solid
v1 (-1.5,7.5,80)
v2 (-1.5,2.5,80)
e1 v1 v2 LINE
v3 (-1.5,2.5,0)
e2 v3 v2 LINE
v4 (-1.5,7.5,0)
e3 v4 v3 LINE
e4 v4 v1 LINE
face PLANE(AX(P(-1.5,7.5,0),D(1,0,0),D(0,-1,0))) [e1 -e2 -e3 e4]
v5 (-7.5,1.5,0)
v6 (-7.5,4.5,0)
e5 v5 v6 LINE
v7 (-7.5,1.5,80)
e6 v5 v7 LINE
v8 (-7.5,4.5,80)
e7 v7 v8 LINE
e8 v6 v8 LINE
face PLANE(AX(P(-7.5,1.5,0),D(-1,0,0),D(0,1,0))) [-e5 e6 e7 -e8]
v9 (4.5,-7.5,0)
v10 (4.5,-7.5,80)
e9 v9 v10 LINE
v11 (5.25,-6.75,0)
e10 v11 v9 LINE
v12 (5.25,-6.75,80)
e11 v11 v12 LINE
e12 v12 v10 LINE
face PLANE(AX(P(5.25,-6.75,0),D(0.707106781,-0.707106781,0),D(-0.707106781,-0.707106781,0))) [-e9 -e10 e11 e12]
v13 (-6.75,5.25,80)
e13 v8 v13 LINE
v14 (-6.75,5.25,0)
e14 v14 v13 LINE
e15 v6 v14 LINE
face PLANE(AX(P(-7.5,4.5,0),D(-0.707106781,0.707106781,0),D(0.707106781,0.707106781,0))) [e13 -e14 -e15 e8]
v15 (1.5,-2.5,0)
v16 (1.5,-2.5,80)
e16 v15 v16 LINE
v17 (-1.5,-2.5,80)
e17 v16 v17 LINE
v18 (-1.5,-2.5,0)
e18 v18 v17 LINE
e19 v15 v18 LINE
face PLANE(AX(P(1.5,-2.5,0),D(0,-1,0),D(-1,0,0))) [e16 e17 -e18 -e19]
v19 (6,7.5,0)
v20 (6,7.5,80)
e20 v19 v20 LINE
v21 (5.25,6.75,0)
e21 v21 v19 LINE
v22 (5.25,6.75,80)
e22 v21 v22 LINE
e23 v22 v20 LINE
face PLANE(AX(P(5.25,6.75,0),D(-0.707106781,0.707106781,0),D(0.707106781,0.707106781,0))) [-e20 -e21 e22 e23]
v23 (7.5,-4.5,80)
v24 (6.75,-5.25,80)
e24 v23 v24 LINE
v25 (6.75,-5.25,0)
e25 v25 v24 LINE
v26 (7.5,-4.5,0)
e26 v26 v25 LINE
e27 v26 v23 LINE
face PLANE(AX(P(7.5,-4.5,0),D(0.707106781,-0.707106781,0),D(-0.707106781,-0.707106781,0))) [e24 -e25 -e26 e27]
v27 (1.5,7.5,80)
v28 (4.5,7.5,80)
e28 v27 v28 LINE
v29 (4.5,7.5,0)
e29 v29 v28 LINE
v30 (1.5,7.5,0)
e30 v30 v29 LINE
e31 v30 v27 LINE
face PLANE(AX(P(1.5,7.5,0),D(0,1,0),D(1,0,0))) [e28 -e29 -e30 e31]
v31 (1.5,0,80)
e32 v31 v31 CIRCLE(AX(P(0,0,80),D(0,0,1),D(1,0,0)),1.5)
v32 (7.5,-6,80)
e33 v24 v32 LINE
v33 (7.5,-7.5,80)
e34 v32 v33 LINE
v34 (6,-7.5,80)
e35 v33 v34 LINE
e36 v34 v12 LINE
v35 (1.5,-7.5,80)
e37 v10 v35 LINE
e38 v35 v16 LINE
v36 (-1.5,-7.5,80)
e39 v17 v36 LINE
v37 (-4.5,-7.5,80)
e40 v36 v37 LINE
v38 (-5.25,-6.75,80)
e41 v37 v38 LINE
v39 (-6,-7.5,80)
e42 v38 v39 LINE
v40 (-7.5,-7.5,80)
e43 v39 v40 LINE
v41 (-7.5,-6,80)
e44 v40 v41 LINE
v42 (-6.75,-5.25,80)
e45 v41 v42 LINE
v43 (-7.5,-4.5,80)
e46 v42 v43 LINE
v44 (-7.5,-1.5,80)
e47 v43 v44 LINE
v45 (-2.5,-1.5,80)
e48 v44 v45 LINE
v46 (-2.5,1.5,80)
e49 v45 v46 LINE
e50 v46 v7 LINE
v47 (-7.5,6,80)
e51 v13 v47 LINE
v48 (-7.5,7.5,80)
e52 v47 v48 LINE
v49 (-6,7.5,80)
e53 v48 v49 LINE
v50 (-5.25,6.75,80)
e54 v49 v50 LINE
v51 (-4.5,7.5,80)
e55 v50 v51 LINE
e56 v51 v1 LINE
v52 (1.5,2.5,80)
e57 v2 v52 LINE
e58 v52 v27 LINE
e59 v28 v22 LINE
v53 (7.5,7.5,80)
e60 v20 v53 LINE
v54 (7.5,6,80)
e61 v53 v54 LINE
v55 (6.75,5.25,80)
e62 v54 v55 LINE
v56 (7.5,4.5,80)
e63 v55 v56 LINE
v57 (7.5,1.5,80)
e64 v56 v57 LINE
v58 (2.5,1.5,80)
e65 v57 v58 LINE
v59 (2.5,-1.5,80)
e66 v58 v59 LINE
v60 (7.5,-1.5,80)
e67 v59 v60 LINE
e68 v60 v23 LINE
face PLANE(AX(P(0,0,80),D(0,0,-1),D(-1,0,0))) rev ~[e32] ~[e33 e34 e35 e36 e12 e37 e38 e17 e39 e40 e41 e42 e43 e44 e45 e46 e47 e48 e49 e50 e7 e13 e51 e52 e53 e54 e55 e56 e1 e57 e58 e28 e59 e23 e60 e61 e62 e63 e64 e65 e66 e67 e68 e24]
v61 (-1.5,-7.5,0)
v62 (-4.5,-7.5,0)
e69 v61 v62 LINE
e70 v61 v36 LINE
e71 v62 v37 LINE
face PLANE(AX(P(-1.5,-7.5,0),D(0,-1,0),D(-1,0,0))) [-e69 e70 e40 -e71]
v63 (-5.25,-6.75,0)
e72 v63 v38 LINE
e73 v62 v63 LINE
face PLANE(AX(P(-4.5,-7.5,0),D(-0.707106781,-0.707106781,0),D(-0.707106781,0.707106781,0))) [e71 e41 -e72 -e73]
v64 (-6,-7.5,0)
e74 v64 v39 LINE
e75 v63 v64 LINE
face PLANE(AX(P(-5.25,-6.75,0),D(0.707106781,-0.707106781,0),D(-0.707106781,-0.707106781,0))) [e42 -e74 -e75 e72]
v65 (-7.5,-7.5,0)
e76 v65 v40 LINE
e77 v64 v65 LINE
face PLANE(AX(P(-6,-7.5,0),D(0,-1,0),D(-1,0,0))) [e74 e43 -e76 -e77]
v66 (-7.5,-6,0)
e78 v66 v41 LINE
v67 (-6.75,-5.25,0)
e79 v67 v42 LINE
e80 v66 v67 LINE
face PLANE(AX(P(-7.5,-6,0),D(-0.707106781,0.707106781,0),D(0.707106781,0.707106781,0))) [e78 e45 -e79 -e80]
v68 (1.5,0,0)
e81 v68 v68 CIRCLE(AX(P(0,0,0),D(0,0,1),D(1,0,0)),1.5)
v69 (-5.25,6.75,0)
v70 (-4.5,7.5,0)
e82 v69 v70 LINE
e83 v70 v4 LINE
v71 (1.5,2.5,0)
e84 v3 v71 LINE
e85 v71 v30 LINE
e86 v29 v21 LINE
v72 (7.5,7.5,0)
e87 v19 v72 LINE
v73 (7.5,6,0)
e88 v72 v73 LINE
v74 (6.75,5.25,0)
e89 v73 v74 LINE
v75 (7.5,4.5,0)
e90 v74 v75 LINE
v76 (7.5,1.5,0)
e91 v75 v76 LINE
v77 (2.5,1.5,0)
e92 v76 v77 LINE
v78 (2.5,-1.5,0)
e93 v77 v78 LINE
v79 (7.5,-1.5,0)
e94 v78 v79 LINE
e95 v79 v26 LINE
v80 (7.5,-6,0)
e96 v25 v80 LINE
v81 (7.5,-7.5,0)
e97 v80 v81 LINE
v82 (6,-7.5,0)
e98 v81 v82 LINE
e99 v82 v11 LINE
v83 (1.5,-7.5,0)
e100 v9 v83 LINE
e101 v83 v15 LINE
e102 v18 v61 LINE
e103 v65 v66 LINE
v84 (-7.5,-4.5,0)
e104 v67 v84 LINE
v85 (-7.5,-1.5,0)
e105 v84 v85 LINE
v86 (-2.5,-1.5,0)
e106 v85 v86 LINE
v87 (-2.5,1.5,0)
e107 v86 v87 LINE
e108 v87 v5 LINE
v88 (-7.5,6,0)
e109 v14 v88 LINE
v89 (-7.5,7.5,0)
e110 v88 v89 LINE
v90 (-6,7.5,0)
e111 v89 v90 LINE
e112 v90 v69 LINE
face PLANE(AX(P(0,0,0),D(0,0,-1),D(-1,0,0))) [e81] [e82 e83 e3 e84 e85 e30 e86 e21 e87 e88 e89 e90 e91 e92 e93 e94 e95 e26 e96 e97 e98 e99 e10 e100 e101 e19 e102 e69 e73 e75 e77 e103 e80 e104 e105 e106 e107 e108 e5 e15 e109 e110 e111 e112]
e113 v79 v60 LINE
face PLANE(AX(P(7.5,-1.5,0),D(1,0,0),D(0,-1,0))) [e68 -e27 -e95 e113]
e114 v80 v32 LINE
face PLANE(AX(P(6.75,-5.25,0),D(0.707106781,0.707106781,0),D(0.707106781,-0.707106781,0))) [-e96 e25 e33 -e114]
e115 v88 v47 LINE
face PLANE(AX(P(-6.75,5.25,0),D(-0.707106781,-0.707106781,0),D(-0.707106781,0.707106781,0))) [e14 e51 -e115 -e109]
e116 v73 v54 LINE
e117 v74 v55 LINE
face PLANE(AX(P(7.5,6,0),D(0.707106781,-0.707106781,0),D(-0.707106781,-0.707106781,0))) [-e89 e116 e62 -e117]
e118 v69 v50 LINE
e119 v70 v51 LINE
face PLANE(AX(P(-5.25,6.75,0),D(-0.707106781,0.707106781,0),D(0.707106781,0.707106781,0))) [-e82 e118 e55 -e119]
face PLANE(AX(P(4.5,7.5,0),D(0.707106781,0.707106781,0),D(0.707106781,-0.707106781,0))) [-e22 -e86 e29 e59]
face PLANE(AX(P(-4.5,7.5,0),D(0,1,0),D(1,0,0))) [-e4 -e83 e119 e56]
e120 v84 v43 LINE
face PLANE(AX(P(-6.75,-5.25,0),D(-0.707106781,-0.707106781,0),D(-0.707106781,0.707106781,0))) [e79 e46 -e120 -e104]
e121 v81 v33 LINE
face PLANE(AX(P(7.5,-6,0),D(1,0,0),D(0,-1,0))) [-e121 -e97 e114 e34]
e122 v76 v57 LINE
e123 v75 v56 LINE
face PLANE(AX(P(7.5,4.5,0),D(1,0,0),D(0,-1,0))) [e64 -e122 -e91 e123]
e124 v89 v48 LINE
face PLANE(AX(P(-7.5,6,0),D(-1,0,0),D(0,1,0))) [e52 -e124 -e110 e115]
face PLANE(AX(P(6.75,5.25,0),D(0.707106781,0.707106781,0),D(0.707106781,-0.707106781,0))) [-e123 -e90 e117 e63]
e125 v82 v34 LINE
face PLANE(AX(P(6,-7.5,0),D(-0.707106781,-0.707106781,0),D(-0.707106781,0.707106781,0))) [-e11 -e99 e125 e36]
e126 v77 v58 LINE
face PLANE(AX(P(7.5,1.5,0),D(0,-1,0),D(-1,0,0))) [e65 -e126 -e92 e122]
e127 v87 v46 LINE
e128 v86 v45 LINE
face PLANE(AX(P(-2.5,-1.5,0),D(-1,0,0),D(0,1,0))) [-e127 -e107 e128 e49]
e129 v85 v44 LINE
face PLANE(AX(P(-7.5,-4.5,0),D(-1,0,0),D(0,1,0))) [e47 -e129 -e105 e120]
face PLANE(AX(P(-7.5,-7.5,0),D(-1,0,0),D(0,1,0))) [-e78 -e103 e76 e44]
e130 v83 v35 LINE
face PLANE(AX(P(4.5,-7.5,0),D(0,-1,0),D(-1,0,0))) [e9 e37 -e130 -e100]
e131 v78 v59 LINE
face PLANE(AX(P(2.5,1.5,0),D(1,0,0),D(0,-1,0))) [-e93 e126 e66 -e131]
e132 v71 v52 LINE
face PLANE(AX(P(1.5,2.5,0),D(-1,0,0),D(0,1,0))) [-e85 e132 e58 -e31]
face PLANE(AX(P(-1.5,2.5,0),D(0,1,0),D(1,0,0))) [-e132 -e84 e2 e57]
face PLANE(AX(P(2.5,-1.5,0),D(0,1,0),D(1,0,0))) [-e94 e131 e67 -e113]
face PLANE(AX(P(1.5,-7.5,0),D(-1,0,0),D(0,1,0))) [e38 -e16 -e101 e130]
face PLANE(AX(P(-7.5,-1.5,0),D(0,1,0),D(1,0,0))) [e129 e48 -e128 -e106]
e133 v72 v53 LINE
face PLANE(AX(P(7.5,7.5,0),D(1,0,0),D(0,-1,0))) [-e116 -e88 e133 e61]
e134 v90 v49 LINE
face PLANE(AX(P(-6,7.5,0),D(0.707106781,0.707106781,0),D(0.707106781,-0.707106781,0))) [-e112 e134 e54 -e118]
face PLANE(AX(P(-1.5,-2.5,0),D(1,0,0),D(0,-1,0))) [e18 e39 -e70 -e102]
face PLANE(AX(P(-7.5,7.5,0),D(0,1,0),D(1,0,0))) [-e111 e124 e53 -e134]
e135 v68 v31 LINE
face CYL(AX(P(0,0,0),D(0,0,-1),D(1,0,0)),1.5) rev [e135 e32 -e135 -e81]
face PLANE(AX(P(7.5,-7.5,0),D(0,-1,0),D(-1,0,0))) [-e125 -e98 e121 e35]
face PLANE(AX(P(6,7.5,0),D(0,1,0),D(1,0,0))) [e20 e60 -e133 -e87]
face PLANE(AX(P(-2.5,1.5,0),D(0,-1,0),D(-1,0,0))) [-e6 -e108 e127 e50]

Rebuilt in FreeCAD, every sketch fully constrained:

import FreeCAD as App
import Part
import Sketcher
from FreeCAD import Vector
Q = App.Units.Quantity


def add_polygon(sketch, points):
    """Adds a closed chain of lines whose ends are joined by coincident constraints."""
    first, n = sketch.GeometryCount, len(points)
    for a, b in zip(points, points[1:] + points[:1]):
        sketch.addGeometry(Part.LineSegment(App.Vector(*a, 0), App.Vector(*b, 0)), False)
    for i in range(n):
        sketch.addConstraint(Sketcher.Constraint("Coincident", first + i, 2, first + (i + 1) % n, 1))

doc = App.newDocument("Part")
params = doc.addObject("Spreadsheet::Sheet", "Params")
for row, (alias, value) in enumerate([
    ("sketch1_diameter", "3 mm"),
    ("sketch1_width", "5 mm"),
    ("sketch1_width2", "3 mm"),
    ("sketch1_width3", "1.5 mm"),
    ("pad1_length", "80 mm"),
], start=1):
    params.set(f"A{row}", alias)
    params.set(f"B{row}", "=" + value)
    params.setAlias(f"B{row}", alias)

body = doc.addObject("PartDesign::Body", "Body")

# Sketch on XY plane
sketch1 = body.newObject("Sketcher::SketchObject", "Sketch")
sketch1.AttachmentSupport = (doc.getObject("XY_Plane"), [""])
sketch1.MapMode = "FlatFace"
add_polygon(sketch1, [(-6, 7.5), (-7.5, 7.5), (-7.5, 6), (-6.8, 5.2), (-7.5, 4.5), (-7.5, 1.5), (-2.5, 1.5), (-2.5, -1.5), (-7.5, -1.5), (-7.5, -4.5), (-6.8, -5.2), (-7.5, -6), (-7.5, -7.5), (-6, -7.5), (-5.2, -6.8), (-4.5, -7.5), (-1.5, -7.5), (-1.5, -2.5), (1.5, -2.5), (1.5, -7.5), (4.5, -7.5), (5.2, -6.8), (6, -7.5), (7.5, -7.5), (7.5, -6), (6.8, -5.2), (7.5, -4.5), (7.5, -1.5), (2.5, -1.5), (2.5, 1.5), (7.5, 1.5), (7.5, 4.5), (6.8, 5.2), (7.5, 6), (7.5, 7.5), (6, 7.5), (5.2, 6.8), (4.5, 7.5), (1.5, 7.5), (1.5, 2.5), (-1.5, 2.5), (-1.5, 7.5), (-4.5, 7.5), (-5.2, 6.8)])  # lines 0-43
sketch1.addGeometry(Part.Circle(Vector(0, 0, 0), Vector(0, 0, 1), 1.5), False)  # 44
sketch1.addConstraint([
    Sketcher.Constraint("Horizontal", 0),
    Sketcher.Constraint("Vertical", 1),
    Sketcher.Constraint("Vertical", 4),
    Sketcher.Constraint("Horizontal", 5),
    Sketcher.Constraint("Vertical", 6),
    Sketcher.Constraint("Horizontal", 7),
    Sketcher.Constraint("Vertical", 8),
    Sketcher.Constraint("Vertical", 11),
    Sketcher.Constraint("Horizontal", 12),
    Sketcher.Constraint("Horizontal", 15),
    Sketcher.Constraint("Vertical", 16),
    Sketcher.Constraint("Horizontal", 17),
    Sketcher.Constraint("Vertical", 18),
    Sketcher.Constraint("Horizontal", 19),
    Sketcher.Constraint("Horizontal", 22),
    Sketcher.Constraint("Vertical", 23),
    Sketcher.Constraint("Vertical", 26),
    Sketcher.Constraint("Horizontal", 27),
    Sketcher.Constraint("Vertical", 28),
    Sketcher.Constraint("Horizontal", 29),
    Sketcher.Constraint("Vertical", 30),
    Sketcher.Constraint("Vertical", 33),
    Sketcher.Constraint("Horizontal", 34),
    Sketcher.Constraint("Horizontal", 37),
    Sketcher.Constraint("Vertical", 38),
    Sketcher.Constraint("Horizontal", 39),
    Sketcher.Constraint("Vertical", 40),
    Sketcher.Constraint("Horizontal", 41),
    Sketcher.Constraint("Coincident", 44, 3, -1, 1),
    Sketcher.Constraint("Symmetric", 0, 2, 22, 2, -1, 1),
    Sketcher.Constraint("Symmetric", 2, 2, 24, 2, -1, 1),
    Sketcher.Constraint("Symmetric", 3, 2, 25, 2, -1, 1),
    Sketcher.Constraint("Symmetric", 5, 2, 27, 2, -1, 1),
    Sketcher.Constraint("Symmetric", 7, 2, 29, 2, -1, 1),
    Sketcher.Constraint("Symmetric", 9, 2, 31, 2, -1, 1),
    Sketcher.Constraint("Symmetric", 10, 2, 32, 2, -1, 1),
    Sketcher.Constraint("Symmetric", 12, 2, 34, 2, -1, 1),
    Sketcher.Constraint("Symmetric", 13, 2, 35, 2, -1, 1),
    Sketcher.Constraint("Symmetric", 14, 2, 36, 2, -1, 1),
    Sketcher.Constraint("Symmetric", 16, 2, 38, 2, -1, 1),
    Sketcher.Constraint("Symmetric", 18, 2, 40, 2, -1, 1),
    Sketcher.Constraint("Symmetric", 20, 2, 42, 2, -1, 1),
    Sketcher.Constraint("Symmetric", 15, 2, 18, 2, -2),
    Sketcher.Constraint("Symmetric", 13, 2, 20, 2, -2),
    Sketcher.Constraint("Symmetric", 12, 2, 21, 2, -2),
    Sketcher.Constraint("Symmetric", 10, 2, 23, 2, -2),
    Sketcher.Constraint("Symmetric", 9, 2, 24, 2, -2),
    Sketcher.Constraint("Symmetric", 8, 2, 25, 2, -2),
    Sketcher.Constraint("Perpendicular", 2, 3),
    Sketcher.Constraint("Perpendicular", 3, 9),
    Sketcher.Constraint("Perpendicular", 9, 10),
    Sketcher.Constraint("Parallel", 10, 13),
    Sketcher.Constraint("Perpendicular", 13, 14),
    Sketcher.Constraint("Perpendicular", 14, 20),
    Sketcher.Constraint("Perpendicular", 25, 31),
    Sketcher.Constraint("Perpendicular", 36, 42),
    Sketcher.Constraint("Perpendicular", 42, 43),
    Sketcher.Constraint("Horizontal", 12, 2, 14, 2),
    Sketcher.Constraint("Horizontal", 7, 2, 26, 2),
    Sketcher.Constraint("Vertical", 1, 2, 3, 2),
    Sketcher.Constraint("Equal", 15, 17),
    Sketcher.Constraint("Equal", 34, 1),
    Sketcher.Constraint("Equal", 41, 4),
    Sketcher.Constraint("Equal", 4, 6),
    Sketcher.Constraint("Equal", 29, 16),
    Sketcher.Constraint("Equal", 10, 13),
    Sketcher.Constraint("Diameter", 44, Q("3 mm")),
    Sketcher.Constraint("DistanceX", 5, 1, 5, 2, Q("5 mm")),
    Sketcher.Constraint("DistanceX", 15, 1, 15, 2, Q("3 mm")),
    Sketcher.Constraint("DistanceX", 0, 2, 0, 1, Q("1.5 mm")),
    Sketcher.Constraint("DistanceY", -1, 1, 1, 2, Q("6 mm")),
])
sketch1.setExpression("Constraints[110]", "Params.sketch1_diameter")
sketch1.setExpression("Constraints[111]", "Params.sketch1_width")
sketch1.setExpression("Constraints[112]", "Params.sketch1_width2")
sketch1.setExpression("Constraints[113]", "Params.sketch1_width3")
pad1 = body.newObject("PartDesign::Pad", "Pad")
pad1.Profile = sketch1
pad1.setExpression("Length", "Params.pad1_length")

doc.recompute()
